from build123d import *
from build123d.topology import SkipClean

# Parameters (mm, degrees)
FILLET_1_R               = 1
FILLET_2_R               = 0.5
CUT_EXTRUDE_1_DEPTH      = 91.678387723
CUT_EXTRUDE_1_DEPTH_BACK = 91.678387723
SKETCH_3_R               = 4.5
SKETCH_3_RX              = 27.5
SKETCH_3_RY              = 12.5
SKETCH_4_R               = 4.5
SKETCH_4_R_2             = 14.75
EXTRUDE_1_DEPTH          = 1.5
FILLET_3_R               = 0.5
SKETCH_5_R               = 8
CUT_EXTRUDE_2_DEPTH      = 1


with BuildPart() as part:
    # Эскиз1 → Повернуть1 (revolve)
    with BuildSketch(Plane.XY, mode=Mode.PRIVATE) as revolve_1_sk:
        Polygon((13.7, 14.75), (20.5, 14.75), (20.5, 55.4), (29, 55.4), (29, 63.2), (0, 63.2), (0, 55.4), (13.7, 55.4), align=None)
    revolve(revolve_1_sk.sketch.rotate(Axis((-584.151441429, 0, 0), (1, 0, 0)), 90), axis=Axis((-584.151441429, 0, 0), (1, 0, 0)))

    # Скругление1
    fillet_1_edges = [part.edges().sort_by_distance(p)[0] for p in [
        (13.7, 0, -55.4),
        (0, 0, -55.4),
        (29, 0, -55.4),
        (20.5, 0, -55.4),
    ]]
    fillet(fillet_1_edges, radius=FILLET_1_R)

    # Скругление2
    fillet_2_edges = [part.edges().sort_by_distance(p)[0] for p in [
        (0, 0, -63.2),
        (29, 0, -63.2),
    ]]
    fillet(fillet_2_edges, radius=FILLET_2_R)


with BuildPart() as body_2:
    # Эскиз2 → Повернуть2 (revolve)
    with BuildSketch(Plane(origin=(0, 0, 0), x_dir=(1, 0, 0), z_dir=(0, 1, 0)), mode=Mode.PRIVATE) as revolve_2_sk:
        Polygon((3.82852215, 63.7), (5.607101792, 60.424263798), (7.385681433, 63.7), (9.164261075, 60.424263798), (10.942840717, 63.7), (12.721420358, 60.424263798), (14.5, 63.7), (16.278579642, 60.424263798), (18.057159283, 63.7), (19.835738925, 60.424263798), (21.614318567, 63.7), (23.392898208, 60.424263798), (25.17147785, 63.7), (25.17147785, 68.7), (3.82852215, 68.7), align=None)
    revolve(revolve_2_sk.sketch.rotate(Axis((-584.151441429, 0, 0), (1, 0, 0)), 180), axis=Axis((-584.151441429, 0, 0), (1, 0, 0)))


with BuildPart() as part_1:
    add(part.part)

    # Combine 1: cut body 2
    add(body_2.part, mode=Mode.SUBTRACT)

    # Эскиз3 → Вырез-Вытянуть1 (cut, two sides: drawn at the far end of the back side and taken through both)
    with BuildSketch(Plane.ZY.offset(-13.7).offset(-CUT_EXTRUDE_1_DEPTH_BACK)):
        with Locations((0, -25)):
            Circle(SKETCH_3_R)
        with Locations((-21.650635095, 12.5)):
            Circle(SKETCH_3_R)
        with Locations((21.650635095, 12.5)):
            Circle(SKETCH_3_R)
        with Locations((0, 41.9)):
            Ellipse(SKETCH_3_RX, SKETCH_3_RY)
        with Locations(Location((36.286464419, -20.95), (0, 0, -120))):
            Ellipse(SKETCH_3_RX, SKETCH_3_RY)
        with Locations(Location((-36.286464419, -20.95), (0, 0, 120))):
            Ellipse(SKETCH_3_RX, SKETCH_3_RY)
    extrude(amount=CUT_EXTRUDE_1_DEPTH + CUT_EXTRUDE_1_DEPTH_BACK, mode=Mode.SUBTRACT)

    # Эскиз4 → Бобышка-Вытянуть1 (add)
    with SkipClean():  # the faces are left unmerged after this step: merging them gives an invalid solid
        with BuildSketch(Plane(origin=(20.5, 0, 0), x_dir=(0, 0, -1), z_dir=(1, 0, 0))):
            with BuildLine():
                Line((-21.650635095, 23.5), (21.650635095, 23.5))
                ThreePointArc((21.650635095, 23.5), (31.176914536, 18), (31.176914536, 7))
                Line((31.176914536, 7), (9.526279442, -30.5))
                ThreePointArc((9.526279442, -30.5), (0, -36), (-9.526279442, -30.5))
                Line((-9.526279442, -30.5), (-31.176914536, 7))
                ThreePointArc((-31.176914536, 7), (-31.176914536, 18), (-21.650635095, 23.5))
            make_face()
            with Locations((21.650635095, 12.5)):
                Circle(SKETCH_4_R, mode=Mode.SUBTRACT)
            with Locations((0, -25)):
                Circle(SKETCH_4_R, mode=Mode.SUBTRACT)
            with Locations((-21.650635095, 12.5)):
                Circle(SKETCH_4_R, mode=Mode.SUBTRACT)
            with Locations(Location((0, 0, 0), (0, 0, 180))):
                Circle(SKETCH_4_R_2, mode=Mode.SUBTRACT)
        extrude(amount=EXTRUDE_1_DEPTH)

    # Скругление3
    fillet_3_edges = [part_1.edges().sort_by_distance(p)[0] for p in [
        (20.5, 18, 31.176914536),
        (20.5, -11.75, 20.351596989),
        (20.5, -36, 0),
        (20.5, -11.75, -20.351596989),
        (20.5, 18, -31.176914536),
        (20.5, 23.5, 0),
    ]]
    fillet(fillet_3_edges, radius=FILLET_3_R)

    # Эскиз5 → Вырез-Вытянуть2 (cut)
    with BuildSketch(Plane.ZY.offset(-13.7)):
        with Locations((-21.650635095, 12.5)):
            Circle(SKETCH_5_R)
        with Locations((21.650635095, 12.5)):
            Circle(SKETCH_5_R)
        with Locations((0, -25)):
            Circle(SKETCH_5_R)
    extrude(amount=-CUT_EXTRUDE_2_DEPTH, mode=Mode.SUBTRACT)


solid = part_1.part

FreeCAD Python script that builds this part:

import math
import FreeCAD as App
import Part
import Sketcher

V = App.Vector
Q = App.Units.Quantity


def edges_at(feature, points):
    """Names of the edges that pass closest to the given points."""
    edges = feature.Shape.Edges
    near = lambda p: min(range(len(edges)), key=lambda i: edges[i].distToShape(Part.Vertex(*p))[0])
    return sorted({f"Edge{near(p) + 1}" for p in points})


def add_polygon(sketch, points):
    """Adds a closed chain of lines whose ends are joined by coincident constraints."""
    first, n = sketch.GeometryCount, len(points)
    for a, b in zip(points, points[1:] + points[:1]):
        sketch.addGeometry(Part.LineSegment(App.Vector(*a, 0), App.Vector(*b, 0)), False)
    for i in range(n):
        sketch.addConstraint(Sketcher.Constraint("Coincident", first + i, 2, first + (i + 1) % n, 1))

doc = App.newDocument("Part")
params = doc.addObject("Spreadsheet::Sheet", "Params")
for row, (alias, value) in enumerate([
    ("sketch1_width", "29 mm"),
    ("sketch1_width2", "6.8 mm"),
    ("sketch1_width3", "8.5 mm"),
    ("sketch1_height", "7.8 mm"),
    ("sketch1_height2", "40.65 mm"),
    ("revolution_angle", "360 deg"),
    ("fillet_radius", "1 mm"),
    ("fillet2_radius", "0.5 mm"),
    ("sketch2_height", "5 mm"),
    ("revolution2_angle", "360 deg"),
    ("sketch3_diameter", "9 mm"),
    ("sketch4_diameter", "9 mm"),
    ("sketch4_radius", "11 mm"),
    ("sketch4_diameter2", "29.5 mm"),
    ("pad1_length", "1.5 mm"),
    ("fillet3_radius", "0.5 mm"),
    ("sketch5_diameter", "16 mm"),
    ("pocket2_length", "1 mm"),
], start=1):
    params.set(f"A{row}", alias)
    params.set(f"B{row}", "=" + value)
    params.setAlias(f"B{row}", alias)

body = doc.addObject("PartDesign::Body", "Body")

# Sketch on XY plane
sketch1 = body.newObject("Sketcher::SketchObject", "Sketch")
sketch1.AttachmentSupport = (doc.getObject("XY_Plane"), [""])
sketch1.MapMode = "FlatFace"
add_polygon(sketch1, [(14, 15), (20, 15), (20, 55), (29, 55), (29, 63), (0, 63), (0, 55), (14, 55)])  # lines 0-7
sketch1.addConstraint(Sketcher.Constraint("Horizontal", 0))
sketch1.addConstraint(Sketcher.Constraint("Vertical", 1))
sketch1.addConstraint(Sketcher.Constraint("Horizontal", 2))
sketch1.addConstraint(Sketcher.Constraint("Vertical", 3))
sketch1.addConstraint(Sketcher.Constraint("Horizontal", 4))
sketch1.addConstraint(Sketcher.Constraint("Vertical", 5))
sketch1.addConstraint(Sketcher.Constraint("Horizontal", 6))
sketch1.addConstraint(Sketcher.Constraint("Vertical", 7))
sketch1.addConstraint(Sketcher.Constraint("PointOnObject", 4, 2, -2))
sketch1.addConstraint(Sketcher.Constraint("Horizontal", 2, 2, 5, 2))
sketch1.addConstraint(Sketcher.Constraint("DistanceX", 4, 2, 4, 1, 29.0))
sketch1.addConstraint(Sketcher.Constraint("DistanceX", 0, 1, 0, 2, 6.8))
sketch1.addConstraint(Sketcher.Constraint("DistanceX", 2, 1, 2, 2, 8.5))
sketch1.addConstraint(Sketcher.Constraint("DistanceY", 3, 1, 3, 2, 7.8))
sketch1.addConstraint(Sketcher.Constraint("DistanceY", 1, 1, 1, 2, 40.65))
sketch1.addConstraint(Sketcher.Constraint("DistanceY", -1, 1, 1, 2, 55.4))
sketch1.setExpression("Constraints[18]", "Params.sketch1_width")
sketch1.setExpression("Constraints[19]", "Params.sketch1_width2")
sketch1.setExpression("Constraints[20]", "Params.sketch1_width3")
sketch1.setExpression("Constraints[21]", "Params.sketch1_height")
sketch1.setExpression("Constraints[22]", "Params.sketch1_height2")
revolution = body.newObject("PartDesign::Revolution", "Revolution")
revolution.Profile = sketch1
revolution.ReferenceAxis = (sketch1, ["H_Axis"])
revolution.setExpression("Angle", "Params.revolution_angle")
doc.recompute()

fillet = body.newObject("PartDesign::Fillet", "Fillet")
fillet.Base = (revolution, edges_at(revolution, [
    (13.7, 0, -55.4),
    (0, 0, -55.4),
    (29, 0, -55.4),
    (20.5, 0, -55.4),
]))
fillet.setExpression("Radius", "Params.fillet_radius")
doc.recompute()

fillet2 = body.newObject("PartDesign::Fillet", "Fillet001")
fillet2.Base = (fillet, edges_at(fillet, [(0, 0, -63.2), (29, 0, -63.2)]))
fillet2.setExpression("Radius", "Params.fillet2_radius")
body2 = doc.addObject("PartDesign::Body", "Body001")

# Sketch on XZ plane
sketch2 = body2.newObject("Sketcher::SketchObject", "Sketch001")
sketch2.AttachmentSupport = (doc.getObject("XZ_Plane001"), [""])
sketch2.MapMode = "FlatFace"
add_polygon(sketch2, [(3.8, -63.7), (5.6, -60.4), (7.4, -63.7), (9.2, -60.4), (10.9, -63.7), (12.7, -60.4), (14.5, -63.7), (16.3, -60.4), (18.1, -63.7), (19.8, -60.4), (21.6, -63.7), (23.4, -60.4), (25.2, -63.7), (25.2, -68.7), (3.8, -68.7)])  # lines 0-14
sketch2.addConstraint(Sketcher.Constraint("Vertical", 12))
sketch2.addConstraint(Sketcher.Constraint("Horizontal", 13))
sketch2.addConstraint(Sketcher.Constraint("Vertical", 14))
sketch2.addConstraint(Sketcher.Constraint("Parallel", 0, 2))
sketch2.addConstraint(Sketcher.Constraint("Parallel", 1, 3))
sketch2.addConstraint(Sketcher.Constraint("Parallel", 2, 4))
sketch2.addConstraint(Sketcher.Constraint("Parallel", 3, 5))
sketch2.addConstraint(Sketcher.Constraint("Parallel", 4, 6))
sketch2.addConstraint(Sketcher.Constraint("Parallel", 5, 7))
sketch2.addConstraint(Sketcher.Constraint("Parallel", 6, 8))
sketch2.addConstraint(Sketcher.Constraint("Parallel", 7, 9))
sketch2.addConstraint(Sketcher.Constraint("Parallel", 8, 10))
sketch2.addConstraint(Sketcher.Constraint("Parallel", 9, 11))
sketch2.addConstraint(Sketcher.Constraint("Horizontal", 0, 2, 2, 2))
sketch2.addConstraint(Sketcher.Constraint("Horizontal", 1, 2, 3, 2))
sketch2.addConstraint(Sketcher.Constraint("Horizontal", 2, 2, 4, 2))
sketch2.addConstraint(Sketcher.Constraint("Horizontal", 3, 2, 5, 2))
sketch2.addConstraint(Sketcher.Constraint("Horizontal", 4, 2, 6, 2))
sketch2.addConstraint(Sketcher.Constraint("Horizontal", 5, 2, 7, 2))
sketch2.addConstraint(Sketcher.Constraint("Horizontal", 6, 2, 8, 2))
sketch2.addConstraint(Sketcher.Constraint("Horizontal", 7, 2, 9, 2))
sketch2.addConstraint(Sketcher.Constraint("Horizontal", 8, 2, 10, 2))
sketch2.addConstraint(Sketcher.Constraint("Horizontal", 9, 2, 11, 2))
sketch2.addConstraint(Sketcher.Constraint("Horizontal", 11, 2, 14, 2))
sketch2.addConstraint(Sketcher.Constraint("Equal", 0, 1))
sketch2.addConstraint(Sketcher.Constraint("DistanceY", 12, 2, 12, 1, 5.0))
sketch2.addConstraint(Sketcher.Constraint("Angle", 0, Q("61.5 deg")))
sketch2.addConstraint(Sketcher.Constraint("DistanceY", 1, 2, -1, 1, 63.7))
sketch2.addConstraint(Sketcher.Constraint("DistanceX", -1, 1, 5, 2, 14.5))
sketch2.addConstraint(Sketcher.Constraint("DistanceX", -1, 1, 0, 2, 5.607102))
sketch2.setExpression("Constraints[40]", "Params.sketch2_height")
revolution2 = body2.newObject("PartDesign::Revolution", "Revolution001")
revolution2.Profile = sketch2
revolution2.ReferenceAxis = (sketch2, ["H_Axis"])
revolution2.setExpression("Angle", "Params.revolution2_angle")
doc.recompute()

boolean = body.newObject("PartDesign::Boolean", "Boolean")
boolean.Type = "Cut"
boolean.addObjects([body2])

# Sketch on YZ plane
sketch3 = body.newObject("Sketcher::SketchObject", "Sketch002")
sketch3.AttachmentSupport = (doc.getObject("YZ_Plane"), [""])
sketch3.MapMode = "FlatFace"
sketch3.AttachmentOffset = App.Placement(V(0, 0, 13.7), App.Rotation())
sketch3.addGeometry(Part.Circle(V(-25, 0, 0), V(0, 0, 1), 4.5), False)
sketch3.addGeometry(Part.Circle(V(12.5, -21.650635, 0), V(0, 0, 1), 4.5), False)
sketch3.addGeometry(Part.Circle(V(12.5, 21.650635, 0), V(0, 0, 1), 4.5), False)
sketch3.addGeometry(Part.Ellipse(V(41.9, 27.5, 0), V(29.4, 0, 0), V(41.9, 0, 0)), False)
sketch3.addGeometry(Part.Ellipse(V(-44.765699, 22.536464, 0), V(-14.7, 25.461147, 0), V(-20.95, 36.286464, 0)), False)
sketch3.addGeometry(Part.Ellipse(V(2.865699, -50.036464, 0), V(-14.7, -25.461147, 0), V(-20.95, -36.286464, 0)), False)
sketch3.addConstraint(Sketcher.Constraint("Block", 3))
sketch3.addConstraint(Sketcher.Constraint("Block", 4))
sketch3.addConstraint(Sketcher.Constraint("Block", 5))
sketch3.addConstraint(Sketcher.Constraint("Equal", 0, 1))
sketch3.addConstraint(Sketcher.Constraint("Equal", 1, 2))
sketch3.addConstraint(Sketcher.Constraint("Symmetric", 1, 3, 2, 3, -1))
sketch3.addConstraint(Sketcher.Constraint("PointOnObject", 0, 3, -1))
sketch3.addConstraint(Sketcher.Constraint("Diameter", 0, 9.0))
sketch3.addConstraint(Sketcher.Constraint("DistanceX", 0, 3, -1, 1, 25.0))
sketch3.addConstraint(Sketcher.Constraint("DistanceX", -1, 1, 1, 3, 12.5))
sketch3.addConstraint(Sketcher.Constraint("DistanceY", 1, 3, 2, 3, 43.30127))
sketch3.setExpression("Constraints[7]", "Params.sketch3_diameter")
pocket1 = body.newObject("PartDesign::Pocket", "Pocket")
pocket1.Profile = sketch3
pocket1.Type = "ThroughAll"
pocket1.Midplane = True

# Sketch on YZ plane
sketch4 = body.newObject("Sketcher::SketchObject", "Sketch003")
sketch4.AttachmentSupport = (doc.getObject("YZ_Plane"), [""])
sketch4.MapMode = "FlatFace"
sketch4.AttachmentOffset = App.Placement(V(0, 0, 20.5), App.Rotation())
sketch4.addGeometry(Part.LineSegment(V(23.5, -21.7, 0), V(23.5, 21.7, 0)), False)
sketch4.addGeometry(Part.ArcOfCircle(Part.Circle(V(12.5, 21.7, 0), V(0, 0, 1), 11), math.radians(0), math.radians(120)), False)
sketch4.addGeometry(Part.LineSegment(V(7, 31.2, 0), V(-30.5, 9.5, 0)), False)
sketch4.addGeometry(Part.ArcOfCircle(Part.Circle(V(-25, 0, 0), V(0, 0, 1), 11), math.radians(120), math.radians(240)), False)
sketch4.addGeometry(Part.LineSegment(V(-30.5, -9.5, 0), V(7, -31.2, 0)), False)
sketch4.addGeometry(Part.ArcOfCircle(Part.Circle(V(12.5, -21.7, 0), V(0, 0, 1), 11), math.radians(-120), math.radians(0)), False)
sketch4.addGeometry(Part.Circle(V(-25, 0, 0), V(0, 0, 1), 4.5), False)
sketch4.addGeometry(Part.Circle(V(12.5, -21.7, 0), V(0, 0, 1), 4.5), False)
sketch4.addGeometry(Part.Circle(V(0, 0, 0), V(0, 0, 1), 14.8), False)
sketch4.addGeometry(Part.Circle(V(12.5, 21.7, 0), V(0, 0, 1), 4.5), False)
sketch4.addConstraint(Sketcher.Constraint("Tangent", 0, 2, 1, 1))
sketch4.addConstraint(Sketcher.Constraint("Tangent", 1, 2, 2, 1))
sketch4.addConstraint(Sketcher.Constraint("Tangent", 2, 2, 3, 1))
sketch4.addConstraint(Sketcher.Constraint("Tangent", 3, 2, 4, 1))
sketch4.addConstraint(Sketcher.Constraint("Tangent", 4, 2, 5, 1))
sketch4.addConstraint(Sketcher.Constraint("Tangent", 5, 2, 0, 1))
sketch4.addConstraint(Sketcher.Constraint("Vertical", 0))
sketch4.addConstraint(Sketcher.Constraint("Coincident", 8, 3, -1, 1))
sketch4.addConstraint(Sketcher.Constraint("Coincident", 6, 3, 3, 3))
sketch4.addConstraint(Sketcher.Constraint("Coincident", 7, 3, 5, 3))
sketch4.addConstraint(Sketcher.Constraint("Coincident", 9, 3, 1, 3))
sketch4.addConstraint(Sketcher.Constraint("Equal", 1, 3))
sketch4.addConstraint(Sketcher.Constraint("Equal", 3, 5))
sketch4.addConstraint(Sketcher.Constraint("Equal", 6, 7))
sketch4.addConstraint(Sketcher.Constraint("Equal", 7, 9))
sketch4.addConstraint(Sketcher.Constraint("Symmetric", 2, 2, 3, 2, -1))
sketch4.addConstraint(Sketcher.Constraint("Diameter", 6, 9.0))
sketch4.addConstraint(Sketcher.Constraint("Radius", 1, 11.0))
sketch4.addConstraint(Sketcher.Constraint("Diameter", 8, 29.5))
sketch4.addConstraint(Sketcher.Constraint("Angle", 2, Q("-150 deg")))
sketch4.addConstraint(Sketcher.Constraint("DistanceX", 3, 3, -1, 1, 25.0))
sketch4.addConstraint(Sketcher.Constraint("DistanceX", -1, 1, 1, 2, 7.0))
sketch4.setExpression("Constraints[16]", "Params.sketch4_diameter")
sketch4.setExpression("Constraints[17]", "Params.sketch4_radius")
sketch4.setExpression("Constraints[18]", "Params.sketch4_diameter2")
pad1 = body.newObject("PartDesign::Pad", "Pad")
pad1.Profile = sketch4
pad1.setExpression("Length", "Params.pad1_length")
doc.recompute()

fillet3 = body.newObject("PartDesign::Fillet", "Fillet002")
fillet3.Base = (pad1, edges_at(pad1, [
    (20.5, 18, 31.177),
    (20.5, -11.75, 20.352),
    (20.5, -36, 0),
    (20.5, -11.75, -20.352),
    (20.5, 18, -31.177),
    (20.5, 23.5, 0),
]))
fillet3.setExpression("Radius", "Params.fillet3_radius")

# Sketch on YZ plane
sketch5 = body.newObject("Sketcher::SketchObject", "Sketch004")
sketch5.AttachmentSupport = (doc.getObject("YZ_Plane"), [""])
sketch5.MapMode = "FlatFace"
sketch5.AttachmentOffset = App.Placement(V(0, 0, 13.7), App.Rotation())
sketch5.addGeometry(Part.Circle(V(12, -22, 0), V(0, 0, 1), 8), False)
sketch5.addGeometry(Part.Circle(V(12, 22, 0), V(0, 0, 1), 8), False)
sketch5.addGeometry(Part.Circle(V(-25, 0, 0), V(0, 0, 1), 8), False)
sketch5.addConstraint(Sketcher.Constraint("Equal", 0, 1))
sketch5.addConstraint(Sketcher.Constraint("Equal", 1, 2))
sketch5.addConstraint(Sketcher.Constraint("Symmetric", 0, 3, 1, 3, -1))
sketch5.addConstraint(Sketcher.Constraint("PointOnObject", 2, 3, -1))
sketch5.addConstraint(Sketcher.Constraint("Diameter", 0, 16.0))
sketch5.addConstraint(Sketcher.Constraint("DistanceX", 2, 3, -1, 1, 25.0))
sketch5.addConstraint(Sketcher.Constraint("DistanceX", -1, 1, 0, 3, 12.5))
sketch5.addConstraint(Sketcher.Constraint("DistanceY", 0, 3, 1, 3, 43.30127))
sketch5.setExpression("Constraints[4]", "Params.sketch5_diameter")
pocket2 = body.newObject("PartDesign::Pocket", "Pocket001")
pocket2.Profile = sketch5
pocket2.setExpression("Length", "Params.pocket2_length")
pocket2.Reversed = True

doc.recompute()
